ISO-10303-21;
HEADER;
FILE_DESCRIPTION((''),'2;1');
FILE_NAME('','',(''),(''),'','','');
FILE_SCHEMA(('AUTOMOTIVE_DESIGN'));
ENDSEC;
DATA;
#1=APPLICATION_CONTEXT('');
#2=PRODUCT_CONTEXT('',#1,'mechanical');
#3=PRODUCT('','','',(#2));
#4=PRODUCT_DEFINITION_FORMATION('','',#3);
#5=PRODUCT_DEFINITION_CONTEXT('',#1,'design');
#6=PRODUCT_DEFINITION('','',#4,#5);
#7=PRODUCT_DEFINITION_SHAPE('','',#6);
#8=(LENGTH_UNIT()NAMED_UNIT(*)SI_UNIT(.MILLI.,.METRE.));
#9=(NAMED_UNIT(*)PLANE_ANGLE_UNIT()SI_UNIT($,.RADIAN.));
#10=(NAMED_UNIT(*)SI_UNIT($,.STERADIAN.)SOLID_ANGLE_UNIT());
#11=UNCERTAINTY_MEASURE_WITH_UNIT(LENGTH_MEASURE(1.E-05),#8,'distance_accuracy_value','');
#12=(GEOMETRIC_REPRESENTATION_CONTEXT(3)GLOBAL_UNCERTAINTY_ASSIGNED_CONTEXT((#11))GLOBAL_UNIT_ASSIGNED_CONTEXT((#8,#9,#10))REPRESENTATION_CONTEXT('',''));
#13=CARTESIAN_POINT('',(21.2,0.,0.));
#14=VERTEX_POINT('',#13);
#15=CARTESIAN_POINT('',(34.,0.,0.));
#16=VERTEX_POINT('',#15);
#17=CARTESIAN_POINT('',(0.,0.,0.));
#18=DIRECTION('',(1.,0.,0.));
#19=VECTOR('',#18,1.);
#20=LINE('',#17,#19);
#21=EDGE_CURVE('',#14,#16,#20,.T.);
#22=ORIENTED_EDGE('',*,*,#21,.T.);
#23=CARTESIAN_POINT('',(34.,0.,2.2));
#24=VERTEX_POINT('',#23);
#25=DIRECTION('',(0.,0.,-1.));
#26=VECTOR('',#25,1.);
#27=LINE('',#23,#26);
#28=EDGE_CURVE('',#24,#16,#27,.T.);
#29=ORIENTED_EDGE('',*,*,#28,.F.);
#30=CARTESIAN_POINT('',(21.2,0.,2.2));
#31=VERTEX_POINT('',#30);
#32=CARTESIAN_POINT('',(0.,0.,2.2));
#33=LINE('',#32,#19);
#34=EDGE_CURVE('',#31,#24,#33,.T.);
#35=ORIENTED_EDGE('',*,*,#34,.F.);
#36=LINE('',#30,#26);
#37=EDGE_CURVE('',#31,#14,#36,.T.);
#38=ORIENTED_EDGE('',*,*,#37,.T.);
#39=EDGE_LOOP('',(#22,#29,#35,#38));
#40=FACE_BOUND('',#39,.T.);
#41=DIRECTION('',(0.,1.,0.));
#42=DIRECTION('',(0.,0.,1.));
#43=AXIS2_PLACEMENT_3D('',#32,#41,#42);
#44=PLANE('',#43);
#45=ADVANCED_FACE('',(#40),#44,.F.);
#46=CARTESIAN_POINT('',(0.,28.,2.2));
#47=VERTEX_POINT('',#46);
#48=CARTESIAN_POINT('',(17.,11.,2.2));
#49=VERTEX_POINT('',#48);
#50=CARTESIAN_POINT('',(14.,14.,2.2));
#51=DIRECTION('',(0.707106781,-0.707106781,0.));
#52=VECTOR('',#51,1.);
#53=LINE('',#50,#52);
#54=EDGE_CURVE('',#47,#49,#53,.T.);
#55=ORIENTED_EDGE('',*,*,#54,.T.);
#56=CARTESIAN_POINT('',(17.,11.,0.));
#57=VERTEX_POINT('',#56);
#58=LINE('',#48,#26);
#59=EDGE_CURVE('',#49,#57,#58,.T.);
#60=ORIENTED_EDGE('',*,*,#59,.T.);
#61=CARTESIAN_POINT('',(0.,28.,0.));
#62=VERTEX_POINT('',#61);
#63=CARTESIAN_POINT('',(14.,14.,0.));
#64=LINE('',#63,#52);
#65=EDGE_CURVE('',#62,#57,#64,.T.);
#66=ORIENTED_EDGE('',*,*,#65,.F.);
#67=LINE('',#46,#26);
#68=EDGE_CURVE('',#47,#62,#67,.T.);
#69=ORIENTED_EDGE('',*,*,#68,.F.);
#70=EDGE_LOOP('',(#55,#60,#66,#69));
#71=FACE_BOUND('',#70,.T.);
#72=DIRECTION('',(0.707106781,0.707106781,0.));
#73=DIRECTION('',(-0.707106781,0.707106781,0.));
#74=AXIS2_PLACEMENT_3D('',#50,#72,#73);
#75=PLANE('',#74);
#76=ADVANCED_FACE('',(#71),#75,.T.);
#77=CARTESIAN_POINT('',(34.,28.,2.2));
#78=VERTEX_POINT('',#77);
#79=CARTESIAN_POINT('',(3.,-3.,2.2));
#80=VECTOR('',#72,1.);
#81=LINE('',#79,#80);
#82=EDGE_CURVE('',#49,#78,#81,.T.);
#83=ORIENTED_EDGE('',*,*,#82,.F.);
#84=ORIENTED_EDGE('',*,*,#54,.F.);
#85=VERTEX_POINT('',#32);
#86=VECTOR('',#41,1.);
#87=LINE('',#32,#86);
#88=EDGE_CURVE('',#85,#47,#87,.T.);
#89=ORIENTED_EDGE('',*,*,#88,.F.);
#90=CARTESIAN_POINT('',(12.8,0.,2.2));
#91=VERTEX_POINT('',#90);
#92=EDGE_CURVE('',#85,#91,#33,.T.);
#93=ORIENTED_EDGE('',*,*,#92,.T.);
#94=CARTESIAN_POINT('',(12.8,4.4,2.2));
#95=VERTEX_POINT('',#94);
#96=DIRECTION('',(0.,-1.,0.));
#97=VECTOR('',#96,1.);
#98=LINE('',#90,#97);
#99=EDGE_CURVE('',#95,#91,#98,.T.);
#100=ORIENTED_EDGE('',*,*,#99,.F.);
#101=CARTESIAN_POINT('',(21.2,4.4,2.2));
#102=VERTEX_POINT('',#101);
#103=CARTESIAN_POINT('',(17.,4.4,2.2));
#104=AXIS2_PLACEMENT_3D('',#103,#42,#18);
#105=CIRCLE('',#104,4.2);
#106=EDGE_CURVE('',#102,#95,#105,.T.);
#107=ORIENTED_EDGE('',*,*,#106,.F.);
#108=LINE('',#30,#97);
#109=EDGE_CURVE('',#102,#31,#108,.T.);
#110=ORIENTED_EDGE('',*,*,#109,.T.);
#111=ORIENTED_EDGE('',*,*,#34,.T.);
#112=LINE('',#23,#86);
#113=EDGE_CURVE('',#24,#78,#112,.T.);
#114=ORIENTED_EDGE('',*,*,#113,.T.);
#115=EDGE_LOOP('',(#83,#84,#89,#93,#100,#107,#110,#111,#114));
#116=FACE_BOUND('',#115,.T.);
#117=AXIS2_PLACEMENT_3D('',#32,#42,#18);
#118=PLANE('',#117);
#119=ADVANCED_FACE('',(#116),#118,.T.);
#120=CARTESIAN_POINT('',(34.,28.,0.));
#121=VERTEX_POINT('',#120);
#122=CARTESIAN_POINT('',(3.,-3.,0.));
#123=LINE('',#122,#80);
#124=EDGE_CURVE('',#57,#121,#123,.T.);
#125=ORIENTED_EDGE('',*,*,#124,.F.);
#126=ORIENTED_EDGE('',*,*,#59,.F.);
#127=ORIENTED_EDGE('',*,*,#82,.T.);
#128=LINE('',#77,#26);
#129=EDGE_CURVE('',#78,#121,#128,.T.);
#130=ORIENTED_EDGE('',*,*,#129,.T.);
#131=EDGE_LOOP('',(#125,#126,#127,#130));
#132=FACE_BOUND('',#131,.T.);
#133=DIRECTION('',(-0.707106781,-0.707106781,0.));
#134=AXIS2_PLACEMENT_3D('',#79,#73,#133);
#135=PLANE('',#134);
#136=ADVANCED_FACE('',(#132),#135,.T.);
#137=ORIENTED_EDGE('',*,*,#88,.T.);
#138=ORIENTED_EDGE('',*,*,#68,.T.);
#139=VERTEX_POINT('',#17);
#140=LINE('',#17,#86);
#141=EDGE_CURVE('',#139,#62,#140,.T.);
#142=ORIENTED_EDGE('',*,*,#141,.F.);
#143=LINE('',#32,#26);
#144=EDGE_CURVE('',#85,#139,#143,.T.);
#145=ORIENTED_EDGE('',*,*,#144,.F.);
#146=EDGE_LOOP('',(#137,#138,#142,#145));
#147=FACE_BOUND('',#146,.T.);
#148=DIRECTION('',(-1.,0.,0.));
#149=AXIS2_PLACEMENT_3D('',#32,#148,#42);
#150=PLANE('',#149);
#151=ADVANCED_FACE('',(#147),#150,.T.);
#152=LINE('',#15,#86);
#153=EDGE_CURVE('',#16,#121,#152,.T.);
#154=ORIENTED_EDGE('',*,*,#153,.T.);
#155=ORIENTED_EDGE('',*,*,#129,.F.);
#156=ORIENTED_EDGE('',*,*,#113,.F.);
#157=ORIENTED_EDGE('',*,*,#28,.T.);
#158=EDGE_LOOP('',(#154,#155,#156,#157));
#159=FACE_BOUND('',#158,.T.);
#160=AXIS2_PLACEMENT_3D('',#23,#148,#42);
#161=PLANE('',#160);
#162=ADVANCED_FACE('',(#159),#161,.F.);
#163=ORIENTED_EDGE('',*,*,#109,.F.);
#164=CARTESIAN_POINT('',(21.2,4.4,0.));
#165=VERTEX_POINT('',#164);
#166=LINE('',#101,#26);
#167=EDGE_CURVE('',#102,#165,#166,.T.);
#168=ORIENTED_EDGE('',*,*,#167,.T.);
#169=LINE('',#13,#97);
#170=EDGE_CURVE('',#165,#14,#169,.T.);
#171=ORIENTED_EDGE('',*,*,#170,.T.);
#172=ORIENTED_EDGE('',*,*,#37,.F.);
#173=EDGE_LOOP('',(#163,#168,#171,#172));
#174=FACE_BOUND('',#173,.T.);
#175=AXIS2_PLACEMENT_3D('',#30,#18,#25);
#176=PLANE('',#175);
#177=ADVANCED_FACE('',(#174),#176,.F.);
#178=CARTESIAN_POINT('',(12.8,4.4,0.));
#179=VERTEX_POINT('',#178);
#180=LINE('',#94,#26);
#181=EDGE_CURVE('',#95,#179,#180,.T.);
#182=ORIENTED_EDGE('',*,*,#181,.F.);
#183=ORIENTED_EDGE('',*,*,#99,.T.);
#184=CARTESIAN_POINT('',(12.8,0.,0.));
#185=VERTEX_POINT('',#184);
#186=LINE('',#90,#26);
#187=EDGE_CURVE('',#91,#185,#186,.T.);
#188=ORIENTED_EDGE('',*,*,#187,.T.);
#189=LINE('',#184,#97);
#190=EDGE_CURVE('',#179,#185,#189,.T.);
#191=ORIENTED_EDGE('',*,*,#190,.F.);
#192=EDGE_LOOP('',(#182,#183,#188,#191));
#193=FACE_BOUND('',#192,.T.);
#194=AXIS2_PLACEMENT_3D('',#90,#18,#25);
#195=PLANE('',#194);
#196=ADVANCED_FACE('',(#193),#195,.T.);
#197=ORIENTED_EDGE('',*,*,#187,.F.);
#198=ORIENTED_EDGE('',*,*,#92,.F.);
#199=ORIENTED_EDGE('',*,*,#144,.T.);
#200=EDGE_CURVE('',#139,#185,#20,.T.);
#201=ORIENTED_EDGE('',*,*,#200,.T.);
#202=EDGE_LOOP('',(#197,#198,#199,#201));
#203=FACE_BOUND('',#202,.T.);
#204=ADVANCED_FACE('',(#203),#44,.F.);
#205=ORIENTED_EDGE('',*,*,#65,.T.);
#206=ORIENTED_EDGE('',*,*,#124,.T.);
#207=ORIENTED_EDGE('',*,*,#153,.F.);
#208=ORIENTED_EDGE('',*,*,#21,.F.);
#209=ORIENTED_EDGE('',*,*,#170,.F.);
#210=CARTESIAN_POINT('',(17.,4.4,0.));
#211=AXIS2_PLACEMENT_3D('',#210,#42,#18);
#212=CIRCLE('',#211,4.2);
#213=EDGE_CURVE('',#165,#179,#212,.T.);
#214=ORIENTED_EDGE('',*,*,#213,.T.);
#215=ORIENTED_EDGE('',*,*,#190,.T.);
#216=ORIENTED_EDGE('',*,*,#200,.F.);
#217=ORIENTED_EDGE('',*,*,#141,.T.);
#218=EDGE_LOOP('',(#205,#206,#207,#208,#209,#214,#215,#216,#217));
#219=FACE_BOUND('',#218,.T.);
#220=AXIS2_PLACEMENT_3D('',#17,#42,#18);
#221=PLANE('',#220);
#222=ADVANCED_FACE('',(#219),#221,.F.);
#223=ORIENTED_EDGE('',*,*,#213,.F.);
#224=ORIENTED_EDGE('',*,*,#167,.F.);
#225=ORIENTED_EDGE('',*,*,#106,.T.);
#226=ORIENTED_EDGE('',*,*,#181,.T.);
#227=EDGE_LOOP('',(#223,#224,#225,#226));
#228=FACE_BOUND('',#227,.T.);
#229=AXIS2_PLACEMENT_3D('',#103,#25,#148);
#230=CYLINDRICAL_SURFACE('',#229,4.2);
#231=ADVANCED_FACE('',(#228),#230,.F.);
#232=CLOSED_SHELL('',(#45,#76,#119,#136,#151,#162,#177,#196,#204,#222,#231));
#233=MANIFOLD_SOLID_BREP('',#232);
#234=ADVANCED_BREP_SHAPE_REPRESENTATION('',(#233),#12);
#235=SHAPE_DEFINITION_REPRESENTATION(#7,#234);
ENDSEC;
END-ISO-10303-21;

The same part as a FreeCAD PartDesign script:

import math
import FreeCAD as App
import Part
import Sketcher

V = App.Vector
Q = App.Units.Quantity

doc = App.newDocument("Part")
params = doc.addObject("Spreadsheet::Sheet", "Params")
for row, (alias, value) in enumerate([
    ("sketch1_radius", "4.2 mm"),
    ("sketch1_height", "28 mm"),
    ("sketch1_width", "12.8 mm"),
    ("sketch1_height2", "4.4 mm"),
    ("pad1_length", "2.2 mm"),
], start=1):
    params.set(f"A{row}", alias)
    params.set(f"B{row}", "=" + value)
    params.setAlias(f"B{row}", alias)

body = doc.addObject("PartDesign::Body", "Body")

# Sketch on XY plane
sketch1 = doc.addObject("Sketcher::SketchObject", "Sketch")
body.addObject(sketch1)
sketch1.AttachmentSupport = (doc.XY_Plane, [""])
sketch1.MapMode = "FlatFace"
sketch1.addGeometry([
    Part.LineSegment(V(17, 11, 0), V(0, 28, 0)),  # 0
    Part.LineSegment(V(0, 28, 0), V(0, 0, 0)),  # 1
    Part.LineSegment(V(0, 0, 0), V(12.8, 0, 0)),  # 2
    Part.LineSegment(V(12.8, 0, 0), V(12.8, 4.4, 0)),  # 3
    Part.ArcOfCircle(Part.Circle(V(17, 4.4, 0), V(0, 0, 1), 4.2), math.radians(0), math.radians(180)),  # 4
    Part.LineSegment(V(21.2, 4.4, 0), V(21.2, 0, 0)),  # 5
    Part.LineSegment(V(21.2, 0, 0), V(34, 0, 0)),  # 6
    Part.LineSegment(V(34, 0, 0), V(34, 28, 0)),  # 7
    Part.LineSegment(V(34, 28, 0), V(17, 11, 0)),  # 8
], False)
sketch1.addConstraint([
    Sketcher.Constraint("Coincident", 0, 2, 1, 1),
    Sketcher.Constraint("Coincident", 1, 2, 2, 1),
    Sketcher.Constraint("Coincident", 2, 2, 3, 1),
    Sketcher.Constraint("Tangent", 3, 2, 4, 2),
    Sketcher.Constraint("Tangent", 4, 1, 5, 1),
    Sketcher.Constraint("Coincident", 5, 2, 6, 1),
    Sketcher.Constraint("Coincident", 6, 2, 7, 1),
    Sketcher.Constraint("Coincident", 7, 2, 8, 1),
    Sketcher.Constraint("Coincident", 8, 2, 0, 1),
    Sketcher.Constraint("Vertical", 1),
    Sketcher.Constraint("Horizontal", 2),
    Sketcher.Constraint("Vertical", 3),
    Sketcher.Constraint("Vertical", 5),
    Sketcher.Constraint("Horizontal", 6),
    Sketcher.Constraint("Vertical", 7),
    Sketcher.Constraint("Coincident", 1, 2, -1, 1),
    Sketcher.Constraint("PointOnObject", 5, 2, -1),
    Sketcher.Constraint("Perpendicular", 0, 8),
    Sketcher.Constraint("Horizontal", 0, 2, 7, 2),
    Sketcher.Constraint("Vertical", 4, 3, 8, 2),
    Sketcher.Constraint("Equal", 2, 6),
    Sketcher.Constraint("Radius", 4, Q("4.2 mm")),
    Sketcher.Constraint("DistanceY", 1, 2, 1, 1, Q("28 mm")),
    Sketcher.Constraint("DistanceX", 2, 1, 2, 2, Q("12.8 mm")),
    Sketcher.Constraint("DistanceY", 3, 1, 3, 2, Q("4.4 mm")),
])
sketch1.setExpression("Constraints[21]", "Params.sketch1_radius")
sketch1.setExpression("Constraints[22]", "Params.sketch1_height")
sketch1.setExpression("Constraints[23]", "Params.sketch1_width")
sketch1.setExpression("Constraints[24]", "Params.sketch1_height2")
pad1 = doc.addObject("PartDesign::Pad", "Pad")
body.addObject(pad1)
pad1.Profile = sketch1
pad1.setExpression("Length", "Params.pad1_length")

doc.recompute()
